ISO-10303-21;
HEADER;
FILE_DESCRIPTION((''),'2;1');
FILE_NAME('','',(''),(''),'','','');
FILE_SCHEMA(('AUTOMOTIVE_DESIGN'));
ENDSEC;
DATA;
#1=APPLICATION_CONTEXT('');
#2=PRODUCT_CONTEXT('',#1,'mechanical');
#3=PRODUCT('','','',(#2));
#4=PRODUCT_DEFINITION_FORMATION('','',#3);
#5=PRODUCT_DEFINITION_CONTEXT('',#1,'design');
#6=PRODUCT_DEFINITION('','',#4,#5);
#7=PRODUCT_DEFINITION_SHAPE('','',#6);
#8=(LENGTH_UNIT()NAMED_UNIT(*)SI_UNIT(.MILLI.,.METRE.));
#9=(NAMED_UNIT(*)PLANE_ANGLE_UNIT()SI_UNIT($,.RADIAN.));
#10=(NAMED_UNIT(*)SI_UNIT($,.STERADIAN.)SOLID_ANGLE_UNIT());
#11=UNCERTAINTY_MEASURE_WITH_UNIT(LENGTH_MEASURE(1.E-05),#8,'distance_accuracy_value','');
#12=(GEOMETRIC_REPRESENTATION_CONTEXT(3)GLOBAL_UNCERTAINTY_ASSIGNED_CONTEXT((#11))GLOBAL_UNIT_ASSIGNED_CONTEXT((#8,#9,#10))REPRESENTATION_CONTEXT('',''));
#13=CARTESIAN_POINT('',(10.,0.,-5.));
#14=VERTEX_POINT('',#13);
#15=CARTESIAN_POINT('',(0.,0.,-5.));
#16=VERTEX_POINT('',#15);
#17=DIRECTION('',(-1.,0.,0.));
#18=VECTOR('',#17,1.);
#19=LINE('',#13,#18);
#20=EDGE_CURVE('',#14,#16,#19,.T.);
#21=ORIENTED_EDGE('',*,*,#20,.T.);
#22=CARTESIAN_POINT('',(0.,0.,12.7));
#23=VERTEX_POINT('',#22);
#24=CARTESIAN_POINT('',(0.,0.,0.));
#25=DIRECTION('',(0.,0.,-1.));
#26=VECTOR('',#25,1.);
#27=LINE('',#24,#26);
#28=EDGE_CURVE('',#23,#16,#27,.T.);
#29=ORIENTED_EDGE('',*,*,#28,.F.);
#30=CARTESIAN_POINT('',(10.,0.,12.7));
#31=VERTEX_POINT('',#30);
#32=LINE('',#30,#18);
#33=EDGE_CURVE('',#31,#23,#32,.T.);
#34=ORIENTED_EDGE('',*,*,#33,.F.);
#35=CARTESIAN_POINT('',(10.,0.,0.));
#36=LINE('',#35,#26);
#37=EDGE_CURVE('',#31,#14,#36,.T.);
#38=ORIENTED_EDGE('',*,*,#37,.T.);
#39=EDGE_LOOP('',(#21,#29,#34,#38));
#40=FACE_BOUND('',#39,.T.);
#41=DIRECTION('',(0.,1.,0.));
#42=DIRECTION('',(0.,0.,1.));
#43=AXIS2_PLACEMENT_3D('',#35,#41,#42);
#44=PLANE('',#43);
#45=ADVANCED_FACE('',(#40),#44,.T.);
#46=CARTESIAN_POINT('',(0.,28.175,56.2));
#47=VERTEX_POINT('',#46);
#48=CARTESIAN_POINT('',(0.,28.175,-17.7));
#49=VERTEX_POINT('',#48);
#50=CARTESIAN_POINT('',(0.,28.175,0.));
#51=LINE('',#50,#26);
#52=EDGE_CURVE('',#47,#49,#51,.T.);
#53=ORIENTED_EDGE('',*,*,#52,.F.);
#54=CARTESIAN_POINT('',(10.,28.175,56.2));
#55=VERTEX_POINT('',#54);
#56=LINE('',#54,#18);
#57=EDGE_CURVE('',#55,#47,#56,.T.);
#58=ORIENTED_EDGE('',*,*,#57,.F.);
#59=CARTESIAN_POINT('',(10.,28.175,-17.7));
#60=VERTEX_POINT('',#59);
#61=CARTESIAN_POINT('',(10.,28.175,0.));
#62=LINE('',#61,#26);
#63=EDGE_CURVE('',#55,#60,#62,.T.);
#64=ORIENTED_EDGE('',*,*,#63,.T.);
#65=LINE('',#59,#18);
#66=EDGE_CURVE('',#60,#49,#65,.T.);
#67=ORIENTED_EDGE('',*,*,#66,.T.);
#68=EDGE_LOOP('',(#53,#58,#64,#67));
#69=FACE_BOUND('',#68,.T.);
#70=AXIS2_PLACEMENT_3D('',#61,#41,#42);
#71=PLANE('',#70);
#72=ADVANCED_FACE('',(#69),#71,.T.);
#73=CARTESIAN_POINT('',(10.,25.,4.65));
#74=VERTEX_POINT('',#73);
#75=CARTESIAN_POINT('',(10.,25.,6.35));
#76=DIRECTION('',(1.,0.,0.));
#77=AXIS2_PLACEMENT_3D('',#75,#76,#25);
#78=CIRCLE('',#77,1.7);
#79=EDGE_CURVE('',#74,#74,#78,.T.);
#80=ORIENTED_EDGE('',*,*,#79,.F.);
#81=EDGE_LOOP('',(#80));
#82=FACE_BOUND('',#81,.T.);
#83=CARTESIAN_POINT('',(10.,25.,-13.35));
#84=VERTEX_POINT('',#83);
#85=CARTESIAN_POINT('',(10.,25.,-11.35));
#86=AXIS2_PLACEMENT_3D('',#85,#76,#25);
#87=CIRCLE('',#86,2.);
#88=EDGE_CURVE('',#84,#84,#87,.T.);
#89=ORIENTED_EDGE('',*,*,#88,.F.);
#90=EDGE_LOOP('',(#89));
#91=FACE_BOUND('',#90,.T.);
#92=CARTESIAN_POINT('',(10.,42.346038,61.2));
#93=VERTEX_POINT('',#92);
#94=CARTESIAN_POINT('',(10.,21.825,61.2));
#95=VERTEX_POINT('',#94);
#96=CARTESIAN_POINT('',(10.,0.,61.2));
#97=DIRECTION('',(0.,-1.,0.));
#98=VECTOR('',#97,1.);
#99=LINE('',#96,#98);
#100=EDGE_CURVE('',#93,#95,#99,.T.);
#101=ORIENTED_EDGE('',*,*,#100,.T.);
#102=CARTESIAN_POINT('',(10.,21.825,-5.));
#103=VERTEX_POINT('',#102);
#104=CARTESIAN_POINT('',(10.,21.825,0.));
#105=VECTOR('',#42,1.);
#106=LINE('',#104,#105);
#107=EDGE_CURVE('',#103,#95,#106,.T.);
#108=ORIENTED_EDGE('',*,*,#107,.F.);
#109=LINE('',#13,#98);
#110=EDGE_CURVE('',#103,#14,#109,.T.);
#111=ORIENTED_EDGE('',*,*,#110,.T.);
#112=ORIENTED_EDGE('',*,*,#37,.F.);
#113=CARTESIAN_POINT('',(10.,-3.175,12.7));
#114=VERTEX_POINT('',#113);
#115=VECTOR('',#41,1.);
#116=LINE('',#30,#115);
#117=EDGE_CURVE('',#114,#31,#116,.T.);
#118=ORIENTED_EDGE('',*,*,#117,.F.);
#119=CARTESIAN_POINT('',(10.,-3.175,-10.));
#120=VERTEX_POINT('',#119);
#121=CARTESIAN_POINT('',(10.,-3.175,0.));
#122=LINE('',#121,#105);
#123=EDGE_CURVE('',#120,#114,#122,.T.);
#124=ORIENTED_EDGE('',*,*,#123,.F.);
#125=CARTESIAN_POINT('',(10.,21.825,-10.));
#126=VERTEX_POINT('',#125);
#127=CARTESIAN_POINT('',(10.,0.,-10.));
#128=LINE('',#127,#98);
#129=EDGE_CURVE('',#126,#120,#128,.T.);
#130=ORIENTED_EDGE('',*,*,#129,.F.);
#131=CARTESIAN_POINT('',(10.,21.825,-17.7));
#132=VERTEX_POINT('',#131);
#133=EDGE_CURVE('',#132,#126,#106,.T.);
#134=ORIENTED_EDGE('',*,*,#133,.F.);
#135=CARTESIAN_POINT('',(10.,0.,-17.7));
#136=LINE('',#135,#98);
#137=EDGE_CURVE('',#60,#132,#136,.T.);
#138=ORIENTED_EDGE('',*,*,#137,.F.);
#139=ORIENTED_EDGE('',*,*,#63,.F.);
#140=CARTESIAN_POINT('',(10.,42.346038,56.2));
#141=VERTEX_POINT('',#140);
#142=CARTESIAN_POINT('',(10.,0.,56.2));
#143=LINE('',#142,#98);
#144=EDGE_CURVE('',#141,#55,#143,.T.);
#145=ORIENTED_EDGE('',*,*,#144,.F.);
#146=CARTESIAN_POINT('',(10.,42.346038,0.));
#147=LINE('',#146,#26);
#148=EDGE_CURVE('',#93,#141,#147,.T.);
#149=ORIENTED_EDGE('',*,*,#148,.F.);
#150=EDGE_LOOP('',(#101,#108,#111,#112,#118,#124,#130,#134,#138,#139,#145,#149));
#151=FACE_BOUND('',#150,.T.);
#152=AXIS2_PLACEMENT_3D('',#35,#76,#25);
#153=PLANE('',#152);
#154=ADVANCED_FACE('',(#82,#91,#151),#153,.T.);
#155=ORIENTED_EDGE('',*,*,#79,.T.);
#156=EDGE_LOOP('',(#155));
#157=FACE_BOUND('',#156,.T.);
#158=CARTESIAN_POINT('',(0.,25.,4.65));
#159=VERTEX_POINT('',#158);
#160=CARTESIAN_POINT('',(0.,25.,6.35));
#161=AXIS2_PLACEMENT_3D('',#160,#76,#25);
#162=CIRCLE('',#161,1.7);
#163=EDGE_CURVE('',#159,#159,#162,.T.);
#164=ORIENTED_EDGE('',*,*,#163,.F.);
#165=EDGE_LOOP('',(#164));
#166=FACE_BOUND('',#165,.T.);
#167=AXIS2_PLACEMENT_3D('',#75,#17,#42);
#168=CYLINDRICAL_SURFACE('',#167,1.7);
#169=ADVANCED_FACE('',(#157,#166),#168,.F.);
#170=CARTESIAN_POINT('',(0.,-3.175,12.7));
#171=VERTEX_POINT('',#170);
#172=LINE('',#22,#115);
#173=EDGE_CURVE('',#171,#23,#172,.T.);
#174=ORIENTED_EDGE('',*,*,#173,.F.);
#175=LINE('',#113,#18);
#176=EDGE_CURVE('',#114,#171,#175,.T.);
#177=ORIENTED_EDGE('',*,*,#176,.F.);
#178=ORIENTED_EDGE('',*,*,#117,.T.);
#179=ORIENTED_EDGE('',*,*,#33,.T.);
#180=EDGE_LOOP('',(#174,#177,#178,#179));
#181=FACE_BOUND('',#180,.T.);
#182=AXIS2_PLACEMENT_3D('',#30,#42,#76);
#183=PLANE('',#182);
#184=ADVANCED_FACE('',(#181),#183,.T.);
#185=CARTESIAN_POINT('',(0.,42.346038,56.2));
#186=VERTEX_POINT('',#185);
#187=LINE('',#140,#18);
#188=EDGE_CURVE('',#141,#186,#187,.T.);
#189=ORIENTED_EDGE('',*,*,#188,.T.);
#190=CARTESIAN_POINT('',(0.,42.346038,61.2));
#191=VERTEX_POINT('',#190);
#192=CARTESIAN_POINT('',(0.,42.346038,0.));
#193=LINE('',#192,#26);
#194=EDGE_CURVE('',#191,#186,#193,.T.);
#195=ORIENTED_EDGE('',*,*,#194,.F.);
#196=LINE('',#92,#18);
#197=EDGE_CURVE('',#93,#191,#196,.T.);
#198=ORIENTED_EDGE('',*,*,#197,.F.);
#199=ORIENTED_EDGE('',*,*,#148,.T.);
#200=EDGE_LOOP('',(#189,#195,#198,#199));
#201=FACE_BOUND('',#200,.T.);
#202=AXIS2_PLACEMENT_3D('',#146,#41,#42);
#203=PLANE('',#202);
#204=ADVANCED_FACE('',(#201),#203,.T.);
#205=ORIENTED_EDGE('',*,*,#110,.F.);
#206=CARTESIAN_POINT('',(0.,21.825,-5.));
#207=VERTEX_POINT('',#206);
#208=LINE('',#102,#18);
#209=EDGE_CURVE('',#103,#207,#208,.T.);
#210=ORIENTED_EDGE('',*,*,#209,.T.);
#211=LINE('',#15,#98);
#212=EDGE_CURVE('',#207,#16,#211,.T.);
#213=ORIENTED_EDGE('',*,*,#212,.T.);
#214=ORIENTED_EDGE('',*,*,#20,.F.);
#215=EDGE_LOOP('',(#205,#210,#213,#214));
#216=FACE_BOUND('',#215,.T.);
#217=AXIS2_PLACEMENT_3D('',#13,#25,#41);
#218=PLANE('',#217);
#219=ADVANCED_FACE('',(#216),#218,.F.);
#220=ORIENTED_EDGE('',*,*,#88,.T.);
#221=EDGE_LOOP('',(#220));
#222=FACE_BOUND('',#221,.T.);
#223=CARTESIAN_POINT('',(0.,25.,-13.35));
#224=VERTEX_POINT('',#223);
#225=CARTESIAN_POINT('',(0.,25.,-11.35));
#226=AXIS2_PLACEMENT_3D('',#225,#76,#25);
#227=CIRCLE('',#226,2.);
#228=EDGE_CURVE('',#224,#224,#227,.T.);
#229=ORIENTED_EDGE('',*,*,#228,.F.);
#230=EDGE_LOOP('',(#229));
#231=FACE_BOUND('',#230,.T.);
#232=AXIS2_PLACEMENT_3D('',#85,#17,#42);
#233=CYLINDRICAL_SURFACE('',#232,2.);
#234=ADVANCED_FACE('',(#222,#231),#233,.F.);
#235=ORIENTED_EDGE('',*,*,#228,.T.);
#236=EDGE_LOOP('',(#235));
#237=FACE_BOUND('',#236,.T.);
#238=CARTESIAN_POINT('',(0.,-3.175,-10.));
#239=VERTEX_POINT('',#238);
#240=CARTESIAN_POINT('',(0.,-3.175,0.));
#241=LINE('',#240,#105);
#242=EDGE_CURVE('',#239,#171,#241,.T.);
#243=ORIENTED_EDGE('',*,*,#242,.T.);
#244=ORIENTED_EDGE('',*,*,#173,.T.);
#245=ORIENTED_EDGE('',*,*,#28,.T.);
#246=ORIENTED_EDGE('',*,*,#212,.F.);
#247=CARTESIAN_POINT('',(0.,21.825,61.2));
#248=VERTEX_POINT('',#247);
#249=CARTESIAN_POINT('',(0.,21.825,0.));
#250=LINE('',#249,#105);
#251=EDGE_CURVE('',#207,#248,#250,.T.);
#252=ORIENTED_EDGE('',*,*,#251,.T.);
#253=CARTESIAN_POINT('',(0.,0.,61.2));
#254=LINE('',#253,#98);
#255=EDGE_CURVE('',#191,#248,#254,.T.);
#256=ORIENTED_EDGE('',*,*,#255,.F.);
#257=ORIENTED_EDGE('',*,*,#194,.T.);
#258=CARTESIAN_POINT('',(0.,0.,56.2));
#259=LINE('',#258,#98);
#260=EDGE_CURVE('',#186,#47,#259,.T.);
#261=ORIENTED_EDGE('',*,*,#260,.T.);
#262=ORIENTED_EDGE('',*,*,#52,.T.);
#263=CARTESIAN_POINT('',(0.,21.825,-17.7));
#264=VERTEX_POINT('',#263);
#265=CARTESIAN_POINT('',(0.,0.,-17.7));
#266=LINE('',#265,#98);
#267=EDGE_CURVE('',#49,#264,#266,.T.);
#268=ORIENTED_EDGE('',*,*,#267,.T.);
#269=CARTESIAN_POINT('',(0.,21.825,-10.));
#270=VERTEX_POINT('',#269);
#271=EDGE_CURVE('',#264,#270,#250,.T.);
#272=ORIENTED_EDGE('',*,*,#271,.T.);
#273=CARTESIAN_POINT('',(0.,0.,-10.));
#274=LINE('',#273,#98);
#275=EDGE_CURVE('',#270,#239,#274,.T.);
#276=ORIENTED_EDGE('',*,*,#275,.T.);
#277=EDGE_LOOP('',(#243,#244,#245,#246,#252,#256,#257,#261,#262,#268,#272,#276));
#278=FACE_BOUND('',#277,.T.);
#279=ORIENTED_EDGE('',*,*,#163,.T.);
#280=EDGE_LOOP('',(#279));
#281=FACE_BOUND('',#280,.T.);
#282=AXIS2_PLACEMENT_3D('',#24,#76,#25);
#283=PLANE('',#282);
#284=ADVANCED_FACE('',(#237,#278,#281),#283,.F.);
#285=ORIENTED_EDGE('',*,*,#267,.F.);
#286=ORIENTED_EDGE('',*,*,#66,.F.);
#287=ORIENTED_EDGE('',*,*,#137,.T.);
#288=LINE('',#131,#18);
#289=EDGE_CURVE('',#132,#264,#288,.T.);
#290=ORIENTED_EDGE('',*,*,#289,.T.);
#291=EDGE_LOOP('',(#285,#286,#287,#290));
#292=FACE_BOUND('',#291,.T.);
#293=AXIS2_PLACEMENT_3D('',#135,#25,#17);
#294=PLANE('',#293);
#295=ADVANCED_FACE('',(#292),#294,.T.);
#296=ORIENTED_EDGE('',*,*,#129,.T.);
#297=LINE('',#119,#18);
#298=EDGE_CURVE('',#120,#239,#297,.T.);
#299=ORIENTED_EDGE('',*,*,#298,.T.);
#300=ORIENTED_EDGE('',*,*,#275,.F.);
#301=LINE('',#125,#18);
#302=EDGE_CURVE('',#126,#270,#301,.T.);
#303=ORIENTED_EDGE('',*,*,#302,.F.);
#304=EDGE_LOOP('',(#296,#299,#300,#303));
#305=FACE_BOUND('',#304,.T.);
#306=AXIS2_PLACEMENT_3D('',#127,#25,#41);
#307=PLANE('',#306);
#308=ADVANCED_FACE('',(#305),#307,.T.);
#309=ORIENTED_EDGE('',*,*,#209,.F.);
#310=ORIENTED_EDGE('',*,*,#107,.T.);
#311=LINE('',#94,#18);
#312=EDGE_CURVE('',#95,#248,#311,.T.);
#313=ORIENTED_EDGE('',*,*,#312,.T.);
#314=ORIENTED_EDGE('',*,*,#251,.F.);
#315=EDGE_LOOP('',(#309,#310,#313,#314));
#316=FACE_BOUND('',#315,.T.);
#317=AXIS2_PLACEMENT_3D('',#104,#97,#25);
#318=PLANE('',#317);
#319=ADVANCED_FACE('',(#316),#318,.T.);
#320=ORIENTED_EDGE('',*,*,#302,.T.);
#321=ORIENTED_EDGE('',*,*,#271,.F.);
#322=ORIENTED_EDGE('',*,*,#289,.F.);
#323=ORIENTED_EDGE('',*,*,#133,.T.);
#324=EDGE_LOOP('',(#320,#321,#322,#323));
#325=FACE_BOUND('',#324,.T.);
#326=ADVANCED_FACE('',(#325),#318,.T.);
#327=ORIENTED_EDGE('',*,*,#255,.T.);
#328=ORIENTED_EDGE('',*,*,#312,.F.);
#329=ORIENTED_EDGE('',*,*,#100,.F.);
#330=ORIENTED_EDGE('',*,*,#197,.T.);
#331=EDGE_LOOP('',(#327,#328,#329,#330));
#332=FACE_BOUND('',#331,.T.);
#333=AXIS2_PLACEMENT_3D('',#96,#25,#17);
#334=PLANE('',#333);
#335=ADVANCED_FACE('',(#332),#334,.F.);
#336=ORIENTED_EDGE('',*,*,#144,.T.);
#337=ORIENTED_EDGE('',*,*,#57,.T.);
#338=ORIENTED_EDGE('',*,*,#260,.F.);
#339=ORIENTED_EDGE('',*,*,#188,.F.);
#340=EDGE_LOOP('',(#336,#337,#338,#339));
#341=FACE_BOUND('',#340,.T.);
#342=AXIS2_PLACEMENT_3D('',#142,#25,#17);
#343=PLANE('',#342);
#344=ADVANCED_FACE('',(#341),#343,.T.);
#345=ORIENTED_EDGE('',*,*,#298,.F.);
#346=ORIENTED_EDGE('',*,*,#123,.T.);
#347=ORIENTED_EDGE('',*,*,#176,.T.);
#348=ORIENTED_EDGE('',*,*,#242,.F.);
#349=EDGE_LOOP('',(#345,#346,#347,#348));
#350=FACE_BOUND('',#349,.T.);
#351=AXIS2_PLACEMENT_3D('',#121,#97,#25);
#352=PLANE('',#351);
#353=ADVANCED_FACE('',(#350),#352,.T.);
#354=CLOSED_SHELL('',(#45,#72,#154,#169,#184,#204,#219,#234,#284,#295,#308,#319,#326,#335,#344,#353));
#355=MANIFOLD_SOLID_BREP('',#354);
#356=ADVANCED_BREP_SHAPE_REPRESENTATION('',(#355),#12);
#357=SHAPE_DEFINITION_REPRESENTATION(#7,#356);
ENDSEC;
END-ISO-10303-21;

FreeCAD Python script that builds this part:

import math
import FreeCAD as App
import Part
import Sketcher
from FreeCAD import Vector

doc = App.newDocument("Part")
body = doc.addObject("PartDesign::Body", "Body")

# Sketch on YZ plane
sketch1 = body.newObject("Sketcher::SketchObject", "Sketch")
sketch1.AttachmentSupport = (doc.getObject("YZ_Plane"), [""])
sketch1.MapMode = "FlatFace"
sketch1.addGeometry([
    Part.LineSegment(Vector(21.825, 61.2, 0), Vector(21.825, -5, 0)),  # 0
    Part.LineSegment(Vector(21.825, -5, 0), Vector(0, -5, 0)),  # 1
    Part.LineSegment(Vector(0, -5, 0), Vector(0, 12.7, 0)),  # 2
    Part.LineSegment(Vector(0, 12.7, 0), Vector(-3.175, 12.7, 0)),  # 3
    Part.LineSegment(Vector(-3.175, 12.7, 0), Vector(-3.175, -10, 0)),  # 4
    Part.LineSegment(Vector(-3.175, -10, 0), Vector(21.825, -10, 0)),  # 5
    Part.LineSegment(Vector(21.825, -10, 0), Vector(21.825, -17.7, 0)),  # 6
    Part.LineSegment(Vector(21.825, -17.7, 0), Vector(28.175, -17.7, 0)),  # 7
    Part.LineSegment(Vector(28.175, -17.7, 0), Vector(28.175, 56.2, 0)),  # 8
    Part.LineSegment(Vector(28.175, 56.2, 0), Vector(42.346038, 56.2, 0)),  # 9
    Part.LineSegment(Vector(42.346038, 56.2, 0), Vector(42.346038, 61.2, 0)),  # 10
    Part.LineSegment(Vector(42.346038, 61.2, 0), Vector(21.825, 61.2, 0)),  # 11
    Part.Circle(Vector(25, -11.35, 0), Vector(0, 0, 1), 2),  # 12
    Part.ArcOfCircle(Part.Circle(Vector(25, 6.35, 0), Vector(0, 0, 1), 1.7), math.radians(180), math.radians(270)),  # 13
    Part.ArcOfCircle(Part.Circle(Vector(25, 6.35, 0), Vector(0, 0, 1), 1.7), math.radians(0), math.radians(180)),  # 14
    Part.ArcOfCircle(Part.Circle(Vector(25, 6.35, 0), Vector(0, 0, 1), 1.7), math.radians(-90), math.radians(0)),  # 15
], False)
sketch1.addConstraint([
    Sketcher.Constraint("Coincident", 0, 2, 1, 1),
    Sketcher.Constraint("Coincident", 1, 2, 2, 1),
    Sketcher.Constraint("Coincident", 2, 2, 3, 1),
    Sketcher.Constraint("Coincident", 3, 2, 4, 1),
    Sketcher.Constraint("Coincident", 4, 2, 5, 1),
    Sketcher.Constraint("Coincident", 5, 2, 6, 1),
    Sketcher.Constraint("Coincident", 6, 2, 7, 1),
    Sketcher.Constraint("Coincident", 7, 2, 8, 1),
    Sketcher.Constraint("Coincident", 8, 2, 9, 1),
    Sketcher.Constraint("Coincident", 9, 2, 10, 1),
    Sketcher.Constraint("Coincident", 10, 2, 11, 1),
    Sketcher.Constraint("Coincident", 11, 2, 0, 1),
    Sketcher.Constraint("Tangent", 13, 1, 14, 2),
    Sketcher.Constraint("Tangent", 14, 1, 15, 2),
    Sketcher.Constraint("Tangent", 15, 1, 13, 2),
    Sketcher.Constraint("Vertical", 0),
    Sketcher.Constraint("Horizontal", 1),
    Sketcher.Constraint("Vertical", 2),
    Sketcher.Constraint("Horizontal", 3),
    Sketcher.Constraint("Vertical", 4),
    Sketcher.Constraint("Horizontal", 5),
    Sketcher.Constraint("Vertical", 6),
    Sketcher.Constraint("Horizontal", 7),
    Sketcher.Constraint("Vertical", 8),
    Sketcher.Constraint("Horizontal", 9),
    Sketcher.Constraint("Vertical", 10),
    Sketcher.Constraint("Horizontal", 11),
    Sketcher.Constraint("PointOnObject", 1, 2, -2),
    Sketcher.Constraint("Horizontal", 15, 3, 13, 1),
    Sketcher.Constraint("Horizontal", 13, 1, 14, 1),
    Sketcher.Constraint("Vertical", 12, 3, 13, 3),
    Sketcher.Constraint("Vertical", 0, 2, 5, 2),
    Sketcher.Constraint("Vertical", 14, 3, 15, 1),
    Sketcher.Constraint("Diameter", 12, 4.0),
    Sketcher.Constraint("Radius", 13, 1.7),
    Sketcher.Constraint("DistanceX", 5, 1, 5, 2, 25.0),
    Sketcher.Constraint("DistanceY", 10, 1, 10, 2, 5.0),
    Sketcher.Constraint("DistanceY", 0, 2, 0, 1, 66.2),
    Sketcher.Constraint("DistanceY", 2, 1, 2, 2, 17.7),
    Sketcher.Constraint("DistanceY", 4, 2, 4, 1, 22.7),
    Sketcher.Constraint("DistanceY", 6, 2, 6, 1, 7.7),
    Sketcher.Constraint("DistanceX", -1, 1, 12, 3, 25.0),
    Sketcher.Constraint("DistanceY", 0, 2, -1, 1, 5.0),
    Sketcher.Constraint("DistanceX", 7, 1, 7, 2, 6.35),
    Sketcher.Constraint("DistanceY", 12, 3, 13, 3, 17.7),
    Sketcher.Constraint("DistanceX", 1, 2, 1, 1, 21.825),
    Sketcher.Constraint("DistanceY", 12, 3, -1, 1, 11.35),
    Sketcher.Constraint("DistanceX", 9, 1, 9, 2, 14.171038),
])
pad1 = body.newObject("PartDesign::Pad", "Pad")
pad1.Profile = sketch1
pad1.Length = 10

doc.recompute()
